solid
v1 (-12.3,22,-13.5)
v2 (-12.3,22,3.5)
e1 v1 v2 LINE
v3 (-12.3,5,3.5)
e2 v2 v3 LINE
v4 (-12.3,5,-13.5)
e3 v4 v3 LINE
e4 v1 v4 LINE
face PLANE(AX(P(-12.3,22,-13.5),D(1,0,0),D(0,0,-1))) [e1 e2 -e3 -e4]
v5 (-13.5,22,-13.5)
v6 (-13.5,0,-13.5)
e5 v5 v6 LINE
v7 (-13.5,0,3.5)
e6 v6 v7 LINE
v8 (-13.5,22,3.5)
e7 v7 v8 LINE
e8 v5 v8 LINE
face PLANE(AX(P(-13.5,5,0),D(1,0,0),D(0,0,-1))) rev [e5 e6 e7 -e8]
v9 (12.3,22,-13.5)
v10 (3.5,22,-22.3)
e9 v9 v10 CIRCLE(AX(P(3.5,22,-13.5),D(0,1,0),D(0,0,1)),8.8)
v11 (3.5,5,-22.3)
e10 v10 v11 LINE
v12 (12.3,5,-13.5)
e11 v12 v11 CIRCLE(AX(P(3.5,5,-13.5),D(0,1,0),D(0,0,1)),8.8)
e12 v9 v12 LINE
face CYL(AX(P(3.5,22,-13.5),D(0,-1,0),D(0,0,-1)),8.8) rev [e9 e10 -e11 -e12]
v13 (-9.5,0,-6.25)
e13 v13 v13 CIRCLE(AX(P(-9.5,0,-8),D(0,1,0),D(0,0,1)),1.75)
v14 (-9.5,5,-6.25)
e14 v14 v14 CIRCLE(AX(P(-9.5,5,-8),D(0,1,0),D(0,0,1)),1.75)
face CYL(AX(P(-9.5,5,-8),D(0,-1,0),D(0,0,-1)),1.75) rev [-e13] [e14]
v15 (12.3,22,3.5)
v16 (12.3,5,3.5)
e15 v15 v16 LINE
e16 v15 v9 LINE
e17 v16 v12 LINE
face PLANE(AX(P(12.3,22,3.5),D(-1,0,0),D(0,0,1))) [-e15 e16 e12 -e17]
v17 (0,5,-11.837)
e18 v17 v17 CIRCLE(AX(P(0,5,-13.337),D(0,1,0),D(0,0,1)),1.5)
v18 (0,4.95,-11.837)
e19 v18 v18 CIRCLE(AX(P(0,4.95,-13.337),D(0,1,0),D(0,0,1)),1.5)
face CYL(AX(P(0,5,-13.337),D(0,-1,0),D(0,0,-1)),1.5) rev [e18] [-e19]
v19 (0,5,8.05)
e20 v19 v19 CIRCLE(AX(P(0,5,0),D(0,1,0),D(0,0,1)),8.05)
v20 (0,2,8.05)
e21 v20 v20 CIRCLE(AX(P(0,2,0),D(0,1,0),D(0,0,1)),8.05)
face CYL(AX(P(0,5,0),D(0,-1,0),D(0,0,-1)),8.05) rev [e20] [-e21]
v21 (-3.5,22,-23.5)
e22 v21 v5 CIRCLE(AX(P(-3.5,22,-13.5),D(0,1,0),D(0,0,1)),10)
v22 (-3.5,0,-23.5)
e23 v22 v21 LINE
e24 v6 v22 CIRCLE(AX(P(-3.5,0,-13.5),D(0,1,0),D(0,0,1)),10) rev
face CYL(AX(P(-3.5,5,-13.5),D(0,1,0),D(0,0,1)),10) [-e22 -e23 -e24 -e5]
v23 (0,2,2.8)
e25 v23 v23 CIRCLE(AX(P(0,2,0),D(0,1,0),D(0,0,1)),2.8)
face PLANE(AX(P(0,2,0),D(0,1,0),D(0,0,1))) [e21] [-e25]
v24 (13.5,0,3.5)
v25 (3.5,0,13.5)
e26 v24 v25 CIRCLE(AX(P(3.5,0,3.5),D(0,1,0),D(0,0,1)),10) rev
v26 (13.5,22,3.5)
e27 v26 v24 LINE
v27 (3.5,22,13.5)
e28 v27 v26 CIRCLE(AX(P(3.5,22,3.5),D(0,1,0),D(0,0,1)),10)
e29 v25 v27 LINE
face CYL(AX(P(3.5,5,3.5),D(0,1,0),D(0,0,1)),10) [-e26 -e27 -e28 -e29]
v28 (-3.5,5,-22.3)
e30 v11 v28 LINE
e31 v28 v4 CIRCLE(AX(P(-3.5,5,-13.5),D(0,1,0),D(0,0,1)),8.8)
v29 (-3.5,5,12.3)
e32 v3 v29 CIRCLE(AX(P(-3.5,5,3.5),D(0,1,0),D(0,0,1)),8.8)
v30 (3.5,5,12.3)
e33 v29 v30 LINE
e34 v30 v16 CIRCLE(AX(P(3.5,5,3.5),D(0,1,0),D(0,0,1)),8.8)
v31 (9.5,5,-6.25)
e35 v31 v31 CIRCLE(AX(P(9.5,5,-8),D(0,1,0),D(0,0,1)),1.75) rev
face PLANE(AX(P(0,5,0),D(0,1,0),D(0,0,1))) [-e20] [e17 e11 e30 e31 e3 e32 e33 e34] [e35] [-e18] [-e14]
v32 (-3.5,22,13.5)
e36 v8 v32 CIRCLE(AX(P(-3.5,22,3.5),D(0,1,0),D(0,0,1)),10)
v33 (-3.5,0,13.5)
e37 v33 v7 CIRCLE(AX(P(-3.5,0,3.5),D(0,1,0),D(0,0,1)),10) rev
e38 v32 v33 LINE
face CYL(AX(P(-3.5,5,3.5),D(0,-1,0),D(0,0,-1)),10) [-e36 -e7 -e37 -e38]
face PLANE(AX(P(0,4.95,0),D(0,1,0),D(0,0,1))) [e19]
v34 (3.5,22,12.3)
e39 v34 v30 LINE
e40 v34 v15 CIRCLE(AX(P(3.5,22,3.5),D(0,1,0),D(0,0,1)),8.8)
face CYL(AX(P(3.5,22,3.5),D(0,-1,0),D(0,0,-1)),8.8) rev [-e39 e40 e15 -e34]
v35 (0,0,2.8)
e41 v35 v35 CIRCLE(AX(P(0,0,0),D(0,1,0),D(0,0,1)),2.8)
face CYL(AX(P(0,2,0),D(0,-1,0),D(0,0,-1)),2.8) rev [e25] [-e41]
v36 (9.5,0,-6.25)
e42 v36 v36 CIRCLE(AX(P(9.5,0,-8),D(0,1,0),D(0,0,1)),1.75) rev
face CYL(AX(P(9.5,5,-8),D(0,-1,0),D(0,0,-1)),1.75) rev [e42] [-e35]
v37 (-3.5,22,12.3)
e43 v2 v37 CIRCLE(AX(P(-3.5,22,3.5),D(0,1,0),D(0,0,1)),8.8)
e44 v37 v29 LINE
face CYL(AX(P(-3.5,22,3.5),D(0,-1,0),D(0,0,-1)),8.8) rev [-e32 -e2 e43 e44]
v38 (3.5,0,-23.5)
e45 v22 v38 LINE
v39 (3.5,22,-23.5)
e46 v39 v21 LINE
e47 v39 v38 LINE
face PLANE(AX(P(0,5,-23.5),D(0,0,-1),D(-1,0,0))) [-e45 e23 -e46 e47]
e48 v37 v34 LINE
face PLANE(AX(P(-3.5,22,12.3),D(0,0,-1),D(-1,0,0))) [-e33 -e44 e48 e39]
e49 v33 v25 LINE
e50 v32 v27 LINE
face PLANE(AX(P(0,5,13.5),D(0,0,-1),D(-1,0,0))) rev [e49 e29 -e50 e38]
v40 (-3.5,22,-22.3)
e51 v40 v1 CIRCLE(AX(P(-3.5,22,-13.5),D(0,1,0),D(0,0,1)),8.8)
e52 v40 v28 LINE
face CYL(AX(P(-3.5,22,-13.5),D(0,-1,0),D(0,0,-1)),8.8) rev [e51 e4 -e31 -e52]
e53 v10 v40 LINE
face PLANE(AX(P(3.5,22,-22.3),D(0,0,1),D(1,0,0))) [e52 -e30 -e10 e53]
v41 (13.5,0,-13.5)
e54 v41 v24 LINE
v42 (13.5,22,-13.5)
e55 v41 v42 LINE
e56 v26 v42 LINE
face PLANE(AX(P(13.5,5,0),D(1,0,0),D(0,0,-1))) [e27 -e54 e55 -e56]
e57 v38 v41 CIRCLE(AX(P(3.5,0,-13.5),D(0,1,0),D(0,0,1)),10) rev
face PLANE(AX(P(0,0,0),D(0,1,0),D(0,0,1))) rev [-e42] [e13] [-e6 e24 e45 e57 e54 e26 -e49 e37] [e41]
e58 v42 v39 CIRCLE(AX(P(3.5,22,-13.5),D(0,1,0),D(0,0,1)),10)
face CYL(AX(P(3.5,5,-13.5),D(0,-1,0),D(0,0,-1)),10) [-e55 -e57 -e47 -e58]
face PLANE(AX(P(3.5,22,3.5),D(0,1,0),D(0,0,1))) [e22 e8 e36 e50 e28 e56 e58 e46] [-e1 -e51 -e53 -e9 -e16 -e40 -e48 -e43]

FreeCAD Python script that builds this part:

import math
import FreeCAD as App
import Part
import Sketcher


def edges_at(feature, points):
    """Names of the edges that pass closest to the given points."""
    edges = feature.Shape.Edges
    near = lambda p: min(range(len(edges)), key=lambda i: edges[i].distToShape(Part.Vertex(*p))[0])
    return sorted({f"Edge{near(p) + 1}" for p in points})

doc = App.newDocument("Part")
body = doc.addObject("PartDesign::Body", "Body")

# Sketch on XZ plane
sketch1 = body.newObject("Sketcher::SketchObject", "Sketch")
sketch1.AttachmentSupport = (doc.getObject("XZ_Plane"), [""])
sketch1.MapMode = "FlatFace"
sketch1.addGeometry(Part.LineSegment(App.Vector(-13.5, -23.5, 0), App.Vector(-13.5, 13.5, 0)), False)
sketch1.addGeometry(Part.LineSegment(App.Vector(-13.5, 13.5, 0), App.Vector(13.5, 13.5, 0)), False)
sketch1.addGeometry(Part.LineSegment(App.Vector(13.5, 13.5, 0), App.Vector(13.5, -23.5, 0)), False)
sketch1.addGeometry(Part.LineSegment(App.Vector(13.5, -23.5, 0), App.Vector(-13.5, -23.5, 0)), False)
sketch1.addGeometry(Part.Circle(App.Vector(0, 0, 0), App.Vector(0, 0, 1), 8.1), False)
sketch1.addGeometry(Part.Circle(App.Vector(-9.5, -8, 0), App.Vector(0, 0, 1), 1.8), False)
sketch1.addGeometry(Part.Circle(App.Vector(9.5, -8, 0), App.Vector(0, 0, 1), 1.8), False)
sketch1.addGeometry(Part.Circle(App.Vector(0, -13.3, 0), App.Vector(0, 0, 1), 1.5), False)
sketch1.addConstraint(Sketcher.Constraint("Coincident", 0, 2, 1, 1))
sketch1.addConstraint(Sketcher.Constraint("Coincident", 1, 2, 2, 1))
sketch1.addConstraint(Sketcher.Constraint("Coincident", 2, 2, 3, 1))
sketch1.addConstraint(Sketcher.Constraint("Coincident", 3, 2, 0, 1))
sketch1.addConstraint(Sketcher.Constraint("Vertical", 0))
sketch1.addConstraint(Sketcher.Constraint("Horizontal", 1))
sketch1.addConstraint(Sketcher.Constraint("Vertical", 2))
sketch1.addConstraint(Sketcher.Constraint("Horizontal", 3))
sketch1.addConstraint(Sketcher.Constraint("Coincident", 4, 3, -1, 1))
sketch1.addConstraint(Sketcher.Constraint("Equal", 5, 6))
sketch1.addConstraint(Sketcher.Constraint("Symmetric", 5, 3, 6, 3, -2))
sketch1.addConstraint(Sketcher.Constraint("PointOnObject", 7, 3, -2))
sketch1.addConstraint(Sketcher.Constraint("Diameter", 7, 3.0))
sketch1.addConstraint(Sketcher.Constraint("Diameter", 4, 16.1))
sketch1.addConstraint(Sketcher.Constraint("Diameter", 5, 3.5))
sketch1.addConstraint(Sketcher.Constraint("DistanceX", 1, 1, 1, 2, 27.0))
sketch1.addConstraint(Sketcher.Constraint("DistanceY", 0, 1, 0, 2, 37.0))
sketch1.addConstraint(Sketcher.Constraint("DistanceY", 5, 3, -1, 1, 8.0))
sketch1.addConstraint(Sketcher.Constraint("DistanceX", 5, 3, 6, 3, 19.0))
sketch1.addConstraint(Sketcher.Constraint("DistanceX", 0, 2, 5, 3, 4.0))
sketch1.addConstraint(Sketcher.Constraint("DistanceY", -1, 1, 0, 2, 13.5))
sketch1.addConstraint(Sketcher.Constraint("DistanceY", 7, 3, -1, 1, 13.337))
pad1 = body.newObject("PartDesign::Pad", "Pad")
pad1.Profile = sketch1
pad1.Length = 5
pad1.Reversed = True

# Sketch on XZ plane
sketch2 = body.newObject("Sketcher::SketchObject", "Sketch001")
sketch2.AttachmentSupport = (doc.getObject("XZ_Plane"), [""])
sketch2.MapMode = "FlatFace"
sketch2.addGeometry(Part.Circle(App.Vector(0, -13.3, 0), App.Vector(0, 0, 1), 1.5), False)
sketch2.addConstraint(Sketcher.Constraint("PointOnObject", 0, 3, -2))
sketch2.addConstraint(Sketcher.Constraint("Diameter", 0, 3.0))
sketch2.addConstraint(Sketcher.Constraint("DistanceY", 0, 3, -1, 1, 13.337))
pad2 = body.newObject("PartDesign::Pad", "Pad001")
pad2.Profile = sketch2
pad2.Length = 4.95
pad2.Reversed = True

# Sketch on XZ plane
sketch3 = body.newObject("Sketcher::SketchObject", "Sketch002")
sketch3.AttachmentSupport = (doc.getObject("XZ_Plane"), [""])
sketch3.MapMode = "FlatFace"
sketch3.addGeometry(Part.ArcOfCircle(Part.Circle(App.Vector(0, 0, 0), App.Vector(0, 0, 1), 8.1), math.radians(-41), math.radians(221)), False)
sketch3.addGeometry(Part.ArcOfCircle(Part.Circle(App.Vector(0, 0, 0), App.Vector(0, 0, 1), 8), math.radians(-47.39), math.radians(-41.37)), False)
sketch3.addGeometry(Part.ArcOfCircle(Part.Circle(App.Vector(0, 0, 0), App.Vector(0, 0, 1), 8.1), math.radians(-133), math.radians(-47)), False)
sketch3.addGeometry(Part.ArcOfCircle(Part.Circle(App.Vector(0, 0, 0), App.Vector(0, 0, 1), 8), math.radians(-138.63), math.radians(-132.61)), False)
sketch3.addGeometry(Part.Circle(App.Vector(0, 0, 0), App.Vector(0, 0, 1), 2.8), False)
sketch3.addConstraint(Sketcher.Constraint("Tangent", 0, 1, 1, 2))
sketch3.addConstraint(Sketcher.Constraint("Tangent", 1, 1, 2, 2))
sketch3.addConstraint(Sketcher.Constraint("Tangent", 2, 1, 3, 2))
sketch3.addConstraint(Sketcher.Constraint("Tangent", 3, 1, 0, 2))
sketch3.addConstraint(Sketcher.Constraint("Coincident", 0, 3, -1, 1))
sketch3.addConstraint(Sketcher.Constraint("Coincident", 4, 3, -1, 1))
sketch3.addConstraint(Sketcher.Constraint("Equal", 0, 1))
sketch3.addConstraint(Sketcher.Constraint("Horizontal", 1, 1, 2, 1))
sketch3.addConstraint(Sketcher.Constraint("Horizontal", 0, 1, 3, 1))
sketch3.addConstraint(Sketcher.Constraint("Diameter", 4, 5.6))
sketch3.addConstraint(Sketcher.Constraint("Radius", 0, 8.05))
sketch3.addConstraint(Sketcher.Constraint("DistanceX", -1, 1, 1, 1, 5.45))
sketch3.addConstraint(Sketcher.Constraint("DistanceY", 0, 1, -1, 1, 5.320429))
pad3 = body.newObject("PartDesign::Pad", "Pad002")
pad3.Profile = sketch3
pad3.Length = 2
pad3.Reversed = True
doc.recompute()

fillet = body.newObject("PartDesign::Fillet", "Fillet")
fillet.Base = (pad3, edges_at(pad3, [
    (-13.5, 2.5, -23.5),
    (13.5, 2.5, -23.5),
    (13.5, 2.5, 13.5),
    (-13.5, 2.5, 13.5),
]))
fillet.Radius = 10

# Sketch on XZ plane
sketch4 = body.newObject("Sketcher::SketchObject", "Sketch003")
sketch4.AttachmentSupport = (doc.getObject("XZ_Plane"), [""])
sketch4.MapMode = "FlatFace"
sketch4.AttachmentOffset = App.Placement(App.Vector(0, 0, -22), App.Rotation())
sketch4.addGeometry(Part.LineSegment(App.Vector(14, 4, 0), App.Vector(14, -14, 0)), False)
sketch4.addGeometry(Part.ArcOfCircle(Part.Circle(App.Vector(4, -14, 0), App.Vector(0, 0, 1), 10), math.radians(-90), math.radians(0)), False)
sketch4.addGeometry(Part.LineSegment(App.Vector(4, -24, 0), App.Vector(-4, -24, 0)), False)
sketch4.addGeometry(Part.ArcOfCircle(Part.Circle(App.Vector(-4, -14, 0), App.Vector(0, 0, 1), 10), math.radians(180), math.radians(270)), False)
sketch4.addGeometry(Part.LineSegment(App.Vector(-14, -14, 0), App.Vector(-14, 4, 0)), False)
sketch4.addGeometry(Part.ArcOfCircle(Part.Circle(App.Vector(-4, 4, 0), App.Vector(0, 0, 1), 10), math.radians(90), math.radians(180)), False)
sketch4.addGeometry(Part.LineSegment(App.Vector(-4, 14, 0), App.Vector(4, 14, 0)), False)
sketch4.addGeometry(Part.ArcOfCircle(Part.Circle(App.Vector(4, 4, 0), App.Vector(0, 0, 1), 10), math.radians(0), math.radians(90)), False)
sketch4.addGeometry(Part.LineSegment(App.Vector(-12, 4, 0), App.Vector(-12, -14, 0)), False)
sketch4.addGeometry(Part.ArcOfCircle(Part.Circle(App.Vector(-3, -13, 0), App.Vector(0, 0, 1), 9), math.radians(-180), math.radians(-90)), False)
sketch4.addGeometry(Part.LineSegment(App.Vector(-4, -22, 0), App.Vector(4, -22, 0)), False)
sketch4.addGeometry(Part.ArcOfCircle(Part.Circle(App.Vector(3, -13, 0), App.Vector(0, 0, 1), 9), math.radians(-90), math.radians(0)), False)
sketch4.addGeometry(Part.LineSegment(App.Vector(12, -14, 0), App.Vector(12, 4, 0)), False)
sketch4.addGeometry(Part.ArcOfCircle(Part.Circle(App.Vector(3, 3, 0), App.Vector(0, 0, 1), 9), math.radians(0), math.radians(90)), False)
sketch4.addGeometry(Part.LineSegment(App.Vector(4, 12, 0), App.Vector(-4, 12, 0)), False)
sketch4.addGeometry(Part.ArcOfCircle(Part.Circle(App.Vector(-3, 3, 0), App.Vector(0, 0, 1), 9), math.radians(90), math.radians(180)), False)
sketch4.addConstraint(Sketcher.Constraint("Tangent", 0, 2, 1, 2))
sketch4.addConstraint(Sketcher.Constraint("Tangent", 1, 1, 2, 1))
sketch4.addConstraint(Sketcher.Constraint("Tangent", 2, 2, 3, 2))
sketch4.addConstraint(Sketcher.Constraint("Tangent", 3, 1, 4, 1))
sketch4.addConstraint(Sketcher.Constraint("Tangent", 4, 2, 5, 2))
sketch4.addConstraint(Sketcher.Constraint("Tangent", 5, 1, 6, 1))
sketch4.addConstraint(Sketcher.Constraint("Tangent", 6, 2, 7, 2))
sketch4.addConstraint(Sketcher.Constraint("Tangent", 7, 1, 0, 1))
sketch4.addConstraint(Sketcher.Constraint("Tangent", 8, 2, 9, 1))
sketch4.addConstraint(Sketcher.Constraint("Tangent", 9, 2, 10, 1))
sketch4.addConstraint(Sketcher.Constraint("Tangent", 10, 2, 11, 1))
sketch4.addConstraint(Sketcher.Constraint("Tangent", 11, 2, 12, 1))
sketch4.addConstraint(Sketcher.Constraint("Tangent", 12, 2, 13, 1))
sketch4.addConstraint(Sketcher.Constraint("Tangent", 13, 2, 14, 1))
sketch4.addConstraint(Sketcher.Constraint("Tangent", 14, 2, 15, 1))
sketch4.addConstraint(Sketcher.Constraint("Tangent", 15, 2, 8, 1))
sketch4.addConstraint(Sketcher.Constraint("Vertical", 0))
sketch4.addConstraint(Sketcher.Constraint("Horizontal", 2))
sketch4.addConstraint(Sketcher.Constraint("Vertical", 4))
sketch4.addConstraint(Sketcher.Constraint("Horizontal", 6))
sketch4.addConstraint(Sketcher.Constraint("Vertical", 8))
sketch4.addConstraint(Sketcher.Constraint("Horizontal", 10))
sketch4.addConstraint(Sketcher.Constraint("Vertical", 12))
sketch4.addConstraint(Sketcher.Constraint("Horizontal", 14))
sketch4.addConstraint(Sketcher.Constraint("Coincident", 9, 3, 3, 3))
sketch4.addConstraint(Sketcher.Constraint("Coincident", 11, 3, 1, 3))
sketch4.addConstraint(Sketcher.Constraint("Coincident", 13, 3, 7, 3))
sketch4.addConstraint(Sketcher.Constraint("Equal", 1, 3))
sketch4.addConstraint(Sketcher.Constraint("Equal", 3, 5))
sketch4.addConstraint(Sketcher.Constraint("Equal", 5, 7))
sketch4.addConstraint(Sketcher.Constraint("Equal", 13, 15))
sketch4.addConstraint(Sketcher.Constraint("Radius", 1, 10.0))
sketch4.addConstraint(Sketcher.Constraint("Radius", 9, 8.8))
sketch4.addConstraint(Sketcher.Constraint("DistanceX", 2, 2, 2, 1, 7.0))
sketch4.addConstraint(Sketcher.Constraint("DistanceY", 0, 2, 0, 1, 17.0))
sketch4.addConstraint(Sketcher.Constraint("DistanceX", -1, 1, 1, 3, 3.5))
sketch4.addConstraint(Sketcher.Constraint("DistanceY", 1, 3, -1, 1, 13.5))
pad4 = body.newObject("PartDesign::Pad", "Pad003")
pad4.Profile = sketch4
pad4.Length = 17

doc.recompute()
